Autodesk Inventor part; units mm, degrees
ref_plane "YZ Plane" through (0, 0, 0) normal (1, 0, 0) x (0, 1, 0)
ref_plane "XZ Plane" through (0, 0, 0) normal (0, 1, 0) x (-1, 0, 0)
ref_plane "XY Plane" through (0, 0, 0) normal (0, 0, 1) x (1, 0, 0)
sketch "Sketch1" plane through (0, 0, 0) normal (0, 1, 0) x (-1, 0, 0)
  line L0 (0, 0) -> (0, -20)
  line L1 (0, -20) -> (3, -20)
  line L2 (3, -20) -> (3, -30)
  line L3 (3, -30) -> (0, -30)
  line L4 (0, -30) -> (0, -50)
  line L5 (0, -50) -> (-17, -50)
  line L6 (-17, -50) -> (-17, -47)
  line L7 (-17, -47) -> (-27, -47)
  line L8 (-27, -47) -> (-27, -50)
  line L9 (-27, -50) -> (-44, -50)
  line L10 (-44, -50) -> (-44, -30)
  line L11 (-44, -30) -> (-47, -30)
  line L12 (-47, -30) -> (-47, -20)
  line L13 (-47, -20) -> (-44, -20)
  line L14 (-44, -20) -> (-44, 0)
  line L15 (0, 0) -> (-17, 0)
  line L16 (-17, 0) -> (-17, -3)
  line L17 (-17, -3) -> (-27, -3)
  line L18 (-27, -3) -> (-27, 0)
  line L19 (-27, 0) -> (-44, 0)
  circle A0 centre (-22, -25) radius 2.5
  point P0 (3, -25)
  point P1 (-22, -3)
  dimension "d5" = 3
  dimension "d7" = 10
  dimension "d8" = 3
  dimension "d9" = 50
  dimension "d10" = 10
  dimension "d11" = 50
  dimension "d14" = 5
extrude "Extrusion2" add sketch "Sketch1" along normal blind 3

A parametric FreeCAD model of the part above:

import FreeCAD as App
import Part
import Sketcher

V = App.Vector
Q = App.Units.Quantity

doc = App.newDocument("Part")
body = doc.addObject("PartDesign::Body", "Body")

# Sketch on XZ plane
sketch1 = doc.addObject("Sketcher::SketchObject", "Sketch")
body.addObject(sketch1)
sketch1.AttachmentSupport = (doc.XZ_Plane, [""])
sketch1.MapMode = "FlatFace"
sketch1.addGeometry([
    Part.LineSegment(V(0, -20, 0), V(0, 0, 0)),  # 0
    Part.LineSegment(V(0, 0, 0), V(17, 0, 0)),  # 1
    Part.LineSegment(V(17, 0, 0), V(17, -3, 0)),  # 2
    Part.LineSegment(V(17, -3, 0), V(27, -3, 0)),  # 3
    Part.LineSegment(V(27, -3, 0), V(27, 0, 0)),  # 4
    Part.LineSegment(V(27, 0, 0), V(44, 0, 0)),  # 5
    Part.LineSegment(V(44, 0, 0), V(44, -20, 0)),  # 6
    Part.LineSegment(V(44, -20, 0), V(47, -20, 0)),  # 7
    Part.LineSegment(V(47, -20, 0), V(47, -30, 0)),  # 8
    Part.LineSegment(V(47, -30, 0), V(44, -30, 0)),  # 9
    Part.LineSegment(V(44, -30, 0), V(44, -50, 0)),  # 10
    Part.LineSegment(V(44, -50, 0), V(27, -50, 0)),  # 11
    Part.LineSegment(V(27, -50, 0), V(27, -47, 0)),  # 12
    Part.LineSegment(V(27, -47, 0), V(17, -47, 0)),  # 13
    Part.LineSegment(V(17, -47, 0), V(17, -50, 0)),  # 14
    Part.LineSegment(V(17, -50, 0), V(0, -50, 0)),  # 15
    Part.LineSegment(V(0, -50, 0), V(0, -30, 0)),  # 16
    Part.LineSegment(V(0, -30, 0), V(-3, -30, 0)),  # 17
    Part.LineSegment(V(-3, -30, 0), V(-3, -20, 0)),  # 18
    Part.LineSegment(V(-3, -20, 0), V(0, -20, 0)),  # 19
    Part.Circle(V(22, -25, 0), V(0, 0, 1), 2.5),  # 20
], False)
sketch1.addConstraint([
    Sketcher.Constraint("Coincident", 0, 2, 1, 1),
    Sketcher.Constraint("Coincident", 1, 2, 2, 1),
    Sketcher.Constraint("Coincident", 2, 2, 3, 1),
    Sketcher.Constraint("Coincident", 3, 2, 4, 1),
    Sketcher.Constraint("Coincident", 4, 2, 5, 1),
    Sketcher.Constraint("Coincident", 5, 2, 6, 1),
    Sketcher.Constraint("Coincident", 6, 2, 7, 1),
    Sketcher.Constraint("Coincident", 7, 2, 8, 1),
    Sketcher.Constraint("Coincident", 8, 2, 9, 1),
    Sketcher.Constraint("Coincident", 9, 2, 10, 1),
    Sketcher.Constraint("Coincident", 10, 2, 11, 1),
    Sketcher.Constraint("Coincident", 11, 2, 12, 1),
    Sketcher.Constraint("Coincident", 12, 2, 13, 1),
    Sketcher.Constraint("Coincident", 13, 2, 14, 1),
    Sketcher.Constraint("Coincident", 14, 2, 15, 1),
    Sketcher.Constraint("Coincident", 15, 2, 16, 1),
    Sketcher.Constraint("Coincident", 16, 2, 17, 1),
    Sketcher.Constraint("Coincident", 17, 2, 18, 1),
    Sketcher.Constraint("Coincident", 18, 2, 19, 1),
    Sketcher.Constraint("Coincident", 19, 2, 0, 1),
    Sketcher.Constraint("Vertical", 0),
    Sketcher.Constraint("Horizontal", 1),
    Sketcher.Constraint("Vertical", 2),
    Sketcher.Constraint("Horizontal", 3),
    Sketcher.Constraint("Vertical", 4),
    Sketcher.Constraint("Horizontal", 5),
    Sketcher.Constraint("Vertical", 6),
    Sketcher.Constraint("Horizontal", 7),
    Sketcher.Constraint("Vertical", 8),
    Sketcher.Constraint("Horizontal", 9),
    Sketcher.Constraint("Vertical", 10),
    Sketcher.Constraint("Horizontal", 11),
    Sketcher.Constraint("Vertical", 12),
    Sketcher.Constraint("Horizontal", 13),
    Sketcher.Constraint("Vertical", 14),
    Sketcher.Constraint("Horizontal", 15),
    Sketcher.Constraint("Vertical", 16),
    Sketcher.Constraint("Horizontal", 17),
    Sketcher.Constraint("Vertical", 18),
    Sketcher.Constraint("Horizontal", 19),
    Sketcher.Constraint("Coincident", 0, 2, -1, 1),
    Sketcher.Constraint("PointOnObject", 4, 2, -1),
    Sketcher.Constraint("PointOnObject", 15, 2, -2),
    Sketcher.Constraint("Horizontal", 11, 2, 14, 2),
    Sketcher.Constraint("Horizontal", 9, 2, 16, 2),
    Sketcher.Constraint("Horizontal", 7, 2, 18, 2),
    Sketcher.Constraint("Vertical", 6, 2, 9, 2),
    Sketcher.Constraint("Vertical", 4, 2, 11, 2),
    Sketcher.Constraint("Vertical", 2, 2, 13, 2),
    Sketcher.Constraint("Equal", 1, 5),
    Sketcher.Constraint("Equal", 9, 17),
    Sketcher.Constraint("Equal", 19, 2),
    Sketcher.Constraint("Equal", 13, 8),
    Sketcher.Constraint("Equal", 6, 10),
    Sketcher.Constraint("Equal", 4, 12),
    Sketcher.Constraint("Diameter", 20, Q("5 mm")),
    Sketcher.Constraint("DistanceX", 3, 1, 3, 2, Q("10 mm")),
    Sketcher.Constraint("DistanceX", 7, 1, 7, 2, Q("3 mm")),
    Sketcher.Constraint("DistanceY", 10, 2, -1, 1, Q("50 mm")),
    Sketcher.Constraint("DistanceX", 1, 2, 20, 3, Q("5 mm")),
    Sketcher.Constraint("DistanceY", 20, 3, 6, 2, Q("5 mm")),
    Sketcher.Constraint("DistanceX", 1, 1, 1, 2, Q("17 mm")),
])
pad1 = doc.addObject("PartDesign::Pad", "Pad")
body.addObject(pad1)
pad1.Profile = sketch1
pad1.Length = 3
pad1.Reversed = True

doc.recompute()
